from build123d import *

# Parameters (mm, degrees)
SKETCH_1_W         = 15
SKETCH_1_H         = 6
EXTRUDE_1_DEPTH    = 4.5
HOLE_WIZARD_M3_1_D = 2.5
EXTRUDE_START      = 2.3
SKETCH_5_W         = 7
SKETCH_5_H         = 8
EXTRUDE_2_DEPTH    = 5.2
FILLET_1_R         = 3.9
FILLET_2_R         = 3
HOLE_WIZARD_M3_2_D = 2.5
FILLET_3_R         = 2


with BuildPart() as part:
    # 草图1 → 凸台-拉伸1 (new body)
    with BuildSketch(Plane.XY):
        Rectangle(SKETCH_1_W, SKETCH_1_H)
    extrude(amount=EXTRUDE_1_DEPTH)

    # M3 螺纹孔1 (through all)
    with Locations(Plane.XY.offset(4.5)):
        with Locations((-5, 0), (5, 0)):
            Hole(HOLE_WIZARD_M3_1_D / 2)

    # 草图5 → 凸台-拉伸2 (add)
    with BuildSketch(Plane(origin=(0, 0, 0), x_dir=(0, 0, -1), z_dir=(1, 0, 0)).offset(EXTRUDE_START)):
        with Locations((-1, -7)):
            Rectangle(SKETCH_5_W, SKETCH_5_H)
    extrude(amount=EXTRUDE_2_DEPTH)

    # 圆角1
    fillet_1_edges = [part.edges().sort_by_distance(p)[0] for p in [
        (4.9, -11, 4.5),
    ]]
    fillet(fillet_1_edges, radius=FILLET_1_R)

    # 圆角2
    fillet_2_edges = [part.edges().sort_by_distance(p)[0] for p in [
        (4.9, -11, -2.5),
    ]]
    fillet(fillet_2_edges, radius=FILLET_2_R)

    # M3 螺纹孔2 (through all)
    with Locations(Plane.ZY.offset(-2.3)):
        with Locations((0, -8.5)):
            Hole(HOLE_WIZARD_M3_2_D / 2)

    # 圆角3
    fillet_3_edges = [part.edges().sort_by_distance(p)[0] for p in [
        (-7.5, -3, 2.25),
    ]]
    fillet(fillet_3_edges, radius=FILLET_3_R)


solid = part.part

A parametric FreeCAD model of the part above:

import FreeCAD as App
import Part
import Sketcher


def edges_at(feature, points):
    """Names of the edges that pass closest to the given points."""
    edges = feature.Shape.Edges
    near = lambda p: min(range(len(edges)), key=lambda i: edges[i].distToShape(Part.Vertex(*p))[0])
    return sorted({f"Edge{near(p) + 1}" for p in points})

doc = App.newDocument("Part")
body = doc.addObject("PartDesign::Body", "Body")

# Sketch on XY plane
sketch1 = doc.addObject("Sketcher::SketchObject", "Sketch")
body.addObject(sketch1)
sketch1.AttachmentSupport = (doc.XY_Plane, [""])
sketch1.MapMode = "FlatFace"
sketch1.addGeometry([
    Part.LineSegment(App.Vector(-7.5, 3, 0), App.Vector(-7.5, -3, 0)),
    Part.LineSegment(App.Vector(-7.5, -3, 0), App.Vector(7.5, -3, 0)),
    Part.LineSegment(App.Vector(7.5, -3, 0), App.Vector(7.5, 3, 0)),
    Part.LineSegment(App.Vector(7.5, 3, 0), App.Vector(-7.5, 3, 0)),
], False)
sketch1.addConstraint([
    Sketcher.Constraint("Coincident", 0, 2, 1, 1),
    Sketcher.Constraint("Coincident", 1, 2, 2, 1),
    Sketcher.Constraint("Coincident", 2, 2, 3, 1),
    Sketcher.Constraint("Coincident", 3, 2, 0, 1),
    Sketcher.Constraint("Vertical", 0),
    Sketcher.Constraint("Horizontal", 1),
    Sketcher.Constraint("Vertical", 2),
    Sketcher.Constraint("Horizontal", 3),
    Sketcher.Constraint("Symmetric", 0, 2, 2, 2, -1, 1),
    Sketcher.Constraint("DistanceX", 1, 1, 1, 2, 15.0),
    Sketcher.Constraint("DistanceY", 0, 2, 0, 1, 6.0),
])
pad1 = doc.addObject("PartDesign::Pad", "Pad")
body.addObject(pad1)
pad1.Profile = sketch1
pad1.Length = 4.5

# Sketch on XY plane
sketch2 = doc.addObject("Sketcher::SketchObject", "Sketch001")
body.addObject(sketch2)
sketch2.AttachmentSupport = (doc.XY_Plane, [""])
sketch2.MapMode = "FlatFace"
sketch2.AttachmentOffset = App.Placement(App.Vector(0, 0, 4.5), App.Rotation())
sketch2.addGeometry([
    Part.Circle(App.Vector(-5, 0, 0), App.Vector(0, 0, 1), 1.25),
    Part.Circle(App.Vector(5, 0, 0), App.Vector(0, 0, 1), 1.25),
], False)
sketch2.addConstraint([
    Sketcher.Constraint("Equal", 0, 1),
    Sketcher.Constraint("Symmetric", 0, 3, 1, 3, -1, 1),
    Sketcher.Constraint("PointOnObject", 0, 3, -1),
    Sketcher.Constraint("Diameter", 0, 2.5),
    Sketcher.Constraint("DistanceX", 0, 3, -1, 1, 5.0),
])
doc.recompute()
hole = doc.addObject("PartDesign::Hole", "Hole")
body.addObject(hole)
hole.Profile = sketch2
hole.ThreadType = "None"
hole.Diameter = 2.5
hole.DepthType = "ThroughAll"

# Sketch on YZ plane
sketch3 = doc.addObject("Sketcher::SketchObject", "Sketch002")
body.addObject(sketch3)
sketch3.AttachmentSupport = (doc.YZ_Plane, [""])
sketch3.MapMode = "FlatFace"
sketch3.AttachmentOffset = App.Placement(App.Vector(0, 0, 2.3), App.Rotation())
sketch3.addGeometry([
    Part.LineSegment(App.Vector(-3, 4.5, 0), App.Vector(-11, 4.5, 0)),
    Part.LineSegment(App.Vector(-11, 4.5, 0), App.Vector(-11, -2.5, 0)),
    Part.LineSegment(App.Vector(-11, -2.5, 0), App.Vector(-3, -2.5, 0)),
    Part.LineSegment(App.Vector(-3, -2.5, 0), App.Vector(-3, 4.5, 0)),
], False)
sketch3.addConstraint([
    Sketcher.Constraint("Coincident", 0, 2, 1, 1),
    Sketcher.Constraint("Coincident", 1, 2, 2, 1),
    Sketcher.Constraint("Coincident", 2, 2, 3, 1),
    Sketcher.Constraint("Coincident", 3, 2, 0, 1),
    Sketcher.Constraint("Horizontal", 0),
    Sketcher.Constraint("Vertical", 1),
    Sketcher.Constraint("Horizontal", 2),
    Sketcher.Constraint("Vertical", 3),
    Sketcher.Constraint("DistanceX", 0, 2, 0, 1, 8.0),
    Sketcher.Constraint("DistanceY", 1, 2, 1, 1, 7.0),
    Sketcher.Constraint("DistanceX", 0, 2, -1, 1, 11.0),
    Sketcher.Constraint("DistanceY", -1, 1, 0, 2, 4.5),
])
pad2 = doc.addObject("PartDesign::Pad", "Pad001")
body.addObject(pad2)
pad2.Profile = sketch3
pad2.Length = 5.2
doc.recompute()

fillet = doc.addObject("PartDesign::Fillet", "Fillet")
body.addObject(fillet)
fillet.Base = (pad2, edges_at(pad2, [(4.9, -11, 4.5)]))
fillet.Radius = 3.9
doc.recompute()

fillet2 = doc.addObject("PartDesign::Fillet", "Fillet001")
body.addObject(fillet2)
fillet2.Base = (fillet, edges_at(fillet, [(4.9, -11, -2.5)]))
fillet2.Radius = 3

# Sketch on YZ plane
sketch4 = doc.addObject("Sketcher::SketchObject", "Sketch003")
body.addObject(sketch4)
sketch4.AttachmentSupport = (doc.YZ_Plane, [""])
sketch4.MapMode = "FlatFace"
sketch4.AttachmentOffset = App.Placement(App.Vector(0, 0, 2.3), App.Rotation())
sketch4.addGeometry(Part.Circle(App.Vector(-8.5, 0, 0), App.Vector(0, 0, 1), 1.25), False)
sketch4.addConstraint([
    Sketcher.Constraint("PointOnObject", 0, 3, -1),
    Sketcher.Constraint("Diameter", 0, 2.5),
    Sketcher.Constraint("DistanceX", 0, 3, -1, 1, 8.5),
])
doc.recompute()
hole2 = doc.addObject("PartDesign::Hole", "Hole001")
body.addObject(hole2)
hole2.Profile = sketch4
hole2.ThreadType = "None"
hole2.Diameter = 2.5
hole2.DepthType = "ThroughAll"
hole2.Reversed = True
doc.recompute()

fillet3 = doc.addObject("PartDesign::Fillet", "Fillet002")
body.addObject(fillet3)
fillet3.Base = (hole2, edges_at(hole2, [(-7.5, -3, 2.25)]))
fillet3.Radius = 2

doc.recompute()
